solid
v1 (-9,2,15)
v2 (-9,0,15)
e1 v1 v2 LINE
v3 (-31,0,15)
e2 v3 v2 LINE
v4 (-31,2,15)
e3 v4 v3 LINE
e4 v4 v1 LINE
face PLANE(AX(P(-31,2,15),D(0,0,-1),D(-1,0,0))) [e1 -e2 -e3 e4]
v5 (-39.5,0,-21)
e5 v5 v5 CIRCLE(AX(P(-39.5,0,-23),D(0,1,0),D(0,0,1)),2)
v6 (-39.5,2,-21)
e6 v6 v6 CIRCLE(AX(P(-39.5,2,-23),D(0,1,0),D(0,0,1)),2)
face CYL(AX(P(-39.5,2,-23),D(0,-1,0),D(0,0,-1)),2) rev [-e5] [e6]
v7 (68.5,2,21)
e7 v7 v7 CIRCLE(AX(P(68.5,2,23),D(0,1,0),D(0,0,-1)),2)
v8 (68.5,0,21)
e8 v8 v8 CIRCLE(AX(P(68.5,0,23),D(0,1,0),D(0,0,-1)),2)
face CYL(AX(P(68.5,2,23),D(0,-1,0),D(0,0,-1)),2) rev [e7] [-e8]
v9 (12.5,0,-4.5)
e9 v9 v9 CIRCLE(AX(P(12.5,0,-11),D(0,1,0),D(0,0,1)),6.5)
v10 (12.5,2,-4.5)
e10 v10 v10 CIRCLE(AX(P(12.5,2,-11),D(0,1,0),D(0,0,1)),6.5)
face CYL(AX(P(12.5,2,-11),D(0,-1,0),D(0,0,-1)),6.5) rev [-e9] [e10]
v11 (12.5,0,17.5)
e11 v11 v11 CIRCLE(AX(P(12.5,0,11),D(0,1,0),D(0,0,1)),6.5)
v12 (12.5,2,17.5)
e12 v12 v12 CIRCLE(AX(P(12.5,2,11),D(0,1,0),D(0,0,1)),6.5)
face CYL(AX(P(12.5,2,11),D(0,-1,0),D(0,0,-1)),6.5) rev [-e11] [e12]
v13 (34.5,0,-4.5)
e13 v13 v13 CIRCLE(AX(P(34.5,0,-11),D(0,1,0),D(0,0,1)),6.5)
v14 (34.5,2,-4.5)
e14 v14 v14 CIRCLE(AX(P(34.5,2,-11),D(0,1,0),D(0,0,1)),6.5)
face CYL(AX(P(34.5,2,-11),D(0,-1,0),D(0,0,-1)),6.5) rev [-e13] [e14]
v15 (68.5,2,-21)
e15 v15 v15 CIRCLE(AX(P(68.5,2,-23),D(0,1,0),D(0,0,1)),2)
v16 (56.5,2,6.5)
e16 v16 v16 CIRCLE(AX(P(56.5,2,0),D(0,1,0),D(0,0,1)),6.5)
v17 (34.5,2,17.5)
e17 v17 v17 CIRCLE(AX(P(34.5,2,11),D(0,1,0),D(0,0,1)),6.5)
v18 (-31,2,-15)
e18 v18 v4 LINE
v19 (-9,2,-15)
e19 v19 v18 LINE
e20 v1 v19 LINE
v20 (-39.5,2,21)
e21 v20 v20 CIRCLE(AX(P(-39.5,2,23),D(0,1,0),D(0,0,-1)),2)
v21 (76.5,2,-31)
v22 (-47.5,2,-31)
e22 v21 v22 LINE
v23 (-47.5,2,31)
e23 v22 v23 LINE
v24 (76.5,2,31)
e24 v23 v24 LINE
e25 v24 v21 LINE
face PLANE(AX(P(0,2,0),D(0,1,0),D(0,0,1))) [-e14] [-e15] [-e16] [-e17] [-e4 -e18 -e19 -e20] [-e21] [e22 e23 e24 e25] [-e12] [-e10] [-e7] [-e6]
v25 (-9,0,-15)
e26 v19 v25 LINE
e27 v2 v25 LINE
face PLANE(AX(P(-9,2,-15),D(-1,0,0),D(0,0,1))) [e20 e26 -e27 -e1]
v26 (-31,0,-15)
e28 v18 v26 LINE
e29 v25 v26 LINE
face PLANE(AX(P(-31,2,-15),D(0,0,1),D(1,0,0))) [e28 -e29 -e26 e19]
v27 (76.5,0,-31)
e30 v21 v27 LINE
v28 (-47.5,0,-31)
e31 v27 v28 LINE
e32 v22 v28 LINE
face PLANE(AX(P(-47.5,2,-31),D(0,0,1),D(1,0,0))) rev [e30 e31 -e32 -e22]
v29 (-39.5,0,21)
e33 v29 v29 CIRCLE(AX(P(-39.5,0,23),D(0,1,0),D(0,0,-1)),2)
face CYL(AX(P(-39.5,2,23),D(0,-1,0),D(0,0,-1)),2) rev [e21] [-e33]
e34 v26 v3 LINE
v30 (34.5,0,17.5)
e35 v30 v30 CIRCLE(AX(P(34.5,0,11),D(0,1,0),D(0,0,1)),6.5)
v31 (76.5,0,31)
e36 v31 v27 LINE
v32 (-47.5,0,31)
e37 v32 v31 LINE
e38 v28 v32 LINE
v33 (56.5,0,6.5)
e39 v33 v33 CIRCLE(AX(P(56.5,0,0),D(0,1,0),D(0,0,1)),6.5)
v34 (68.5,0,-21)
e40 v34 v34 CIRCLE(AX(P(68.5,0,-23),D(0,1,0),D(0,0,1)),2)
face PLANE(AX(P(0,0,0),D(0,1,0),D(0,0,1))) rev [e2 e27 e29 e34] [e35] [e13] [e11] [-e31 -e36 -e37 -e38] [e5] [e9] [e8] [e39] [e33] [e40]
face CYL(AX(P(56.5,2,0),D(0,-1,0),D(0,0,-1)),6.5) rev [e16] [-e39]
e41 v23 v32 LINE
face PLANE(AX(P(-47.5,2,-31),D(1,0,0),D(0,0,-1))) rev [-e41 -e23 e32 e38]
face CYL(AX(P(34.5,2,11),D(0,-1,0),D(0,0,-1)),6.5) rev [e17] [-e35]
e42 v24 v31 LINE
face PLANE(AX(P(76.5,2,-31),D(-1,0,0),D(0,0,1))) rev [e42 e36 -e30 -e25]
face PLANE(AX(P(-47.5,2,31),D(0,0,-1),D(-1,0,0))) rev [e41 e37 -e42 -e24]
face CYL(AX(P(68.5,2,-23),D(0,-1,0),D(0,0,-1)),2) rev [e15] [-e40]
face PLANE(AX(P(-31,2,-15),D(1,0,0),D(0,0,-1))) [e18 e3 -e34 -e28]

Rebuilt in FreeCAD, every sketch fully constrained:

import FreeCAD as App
import Part
import Sketcher

V = App.Vector
Q = App.Units.Quantity


def add_polygon(sketch, points):
    """Adds a closed chain of lines whose ends are joined by coincident constraints."""
    first, n = sketch.GeometryCount, len(points)
    for a, b in zip(points, points[1:] + points[:1]):
        sketch.addGeometry(Part.LineSegment(App.Vector(*a, 0), App.Vector(*b, 0)), False)
    for i in range(n):
        sketch.addConstraint(Sketcher.Constraint("Coincident", first + i, 2, first + (i + 1) % n, 1))

doc = App.newDocument("Part")
body = doc.addObject("PartDesign::Body", "Body")

# Sketch on XZ plane
sketch1 = body.newObject("Sketcher::SketchObject", "Sketch")
sketch1.AttachmentSupport = (doc.getObject("XZ_Plane"), [""])
sketch1.MapMode = "FlatFace"
add_polygon(sketch1, [(-47.5, -31), (-47.5, 31), (76.5, 31), (76.5, -31)])  # lines 0-3
sketch1.addGeometry(Part.Circle(V(-39.5, 23, 0), V(0, 0, 1), 2), False)  # 4
sketch1.addGeometry(Part.Circle(V(12.5, 11, 0), V(0, 0, 1), 6.5), False)  # 5
sketch1.addGeometry(Part.Circle(V(68.5, 23, 0), V(0, 0, 1), 2), False)  # 6
sketch1.addGeometry(Part.Circle(V(34.5, 11, 0), V(0, 0, 1), 6.5), False)  # 7
add_polygon(sketch1, [(-9, 15), (-31, 15), (-31, -15), (-9, -15)])  # lines 8-11
sketch1.addGeometry(Part.Circle(V(12.5, -11, 0), V(0, 0, 1), 6.5), False)  # 12
sketch1.addGeometry(Part.Circle(V(-39.5, -23, 0), V(0, 0, 1), 2), False)  # 13
sketch1.addGeometry(Part.Circle(V(34.5, -11, 0), V(0, 0, 1), 6.5), False)  # 14
sketch1.addGeometry(Part.Circle(V(56.5, 0, 0), V(0, 0, 1), 6.5), False)  # 15
sketch1.addGeometry(Part.Circle(V(68.5, -23, 0), V(0, 0, 1), 2), False)  # 16
sketch1.addConstraint([
    Sketcher.Constraint("Vertical", 0),
    Sketcher.Constraint("Horizontal", 1),
    Sketcher.Constraint("Vertical", 2),
    Sketcher.Constraint("Horizontal", 3),
    Sketcher.Constraint("Horizontal", 8),
    Sketcher.Constraint("Vertical", 9),
    Sketcher.Constraint("Horizontal", 10),
    Sketcher.Constraint("Vertical", 11),
    Sketcher.Constraint("Equal", 4, 6),
    Sketcher.Constraint("Equal", 5, 7),
    Sketcher.Constraint("Equal", 7, 12),
    Sketcher.Constraint("Equal", 6, 13),
    Sketcher.Constraint("Equal", 12, 14),
    Sketcher.Constraint("Equal", 14, 15),
    Sketcher.Constraint("Equal", 13, 16),
    Sketcher.Constraint("Symmetric", 5, 3, 12, 3, -1),
    Sketcher.Constraint("Symmetric", 4, 3, 13, 3, -1),
    Sketcher.Constraint("Symmetric", 7, 3, 14, 3, -1),
    Sketcher.Constraint("Symmetric", 6, 3, 16, 3, -1),
    Sketcher.Constraint("PointOnObject", 15, 3, -1),
    Sketcher.Constraint("Horizontal", 4, 3, 6, 3),
    Sketcher.Constraint("Horizontal", 5, 3, 7, 3),
    Sketcher.Constraint("Diameter", 4, Q("4 mm")),
    Sketcher.Constraint("Diameter", 5, Q("13 mm")),
    Sketcher.Constraint("DistanceX", 1, 1, 1, 2, Q("124 mm")),
    Sketcher.Constraint("DistanceX", 8, 2, 8, 1, Q("22 mm")),
    Sketcher.Constraint("DistanceY", 0, 1, 0, 2, Q("62 mm")),
    Sketcher.Constraint("DistanceY", 9, 2, 9, 1, Q("30 mm")),
    Sketcher.Constraint("DistanceY", -1, 1, 4, 3, Q("23 mm")),
    Sketcher.Constraint("DistanceY", -1, 1, 5, 3, Q("11 mm")),
    Sketcher.Constraint("DistanceY", -1, 1, 0, 2, Q("31 mm")),
    Sketcher.Constraint("DistanceX", 8, 2, -1, 1, Q("31 mm")),
    Sketcher.Constraint("DistanceY", -1, 1, 8, 2, Q("15 mm")),
    Sketcher.Constraint("DistanceX", 4, 3, 5, 3, Q("52 mm")),
    Sketcher.Constraint("DistanceX", 5, 3, 6, 3, Q("56 mm")),
    Sketcher.Constraint("DistanceX", 5, 3, 7, 3, Q("22 mm")),
    Sketcher.Constraint("DistanceX", 7, 3, 15, 3, Q("22 mm")),
    Sketcher.Constraint("DistanceX", 0, 2, 4, 3, Q("8 mm")),
    Sketcher.Constraint("DistanceX", 4, 3, -1, 1, Q("39.5 mm")),
])
pad1 = body.newObject("PartDesign::Pad", "Pad")
pad1.Profile = sketch1
pad1.Length = 2
pad1.Reversed = True

doc.recompute()
